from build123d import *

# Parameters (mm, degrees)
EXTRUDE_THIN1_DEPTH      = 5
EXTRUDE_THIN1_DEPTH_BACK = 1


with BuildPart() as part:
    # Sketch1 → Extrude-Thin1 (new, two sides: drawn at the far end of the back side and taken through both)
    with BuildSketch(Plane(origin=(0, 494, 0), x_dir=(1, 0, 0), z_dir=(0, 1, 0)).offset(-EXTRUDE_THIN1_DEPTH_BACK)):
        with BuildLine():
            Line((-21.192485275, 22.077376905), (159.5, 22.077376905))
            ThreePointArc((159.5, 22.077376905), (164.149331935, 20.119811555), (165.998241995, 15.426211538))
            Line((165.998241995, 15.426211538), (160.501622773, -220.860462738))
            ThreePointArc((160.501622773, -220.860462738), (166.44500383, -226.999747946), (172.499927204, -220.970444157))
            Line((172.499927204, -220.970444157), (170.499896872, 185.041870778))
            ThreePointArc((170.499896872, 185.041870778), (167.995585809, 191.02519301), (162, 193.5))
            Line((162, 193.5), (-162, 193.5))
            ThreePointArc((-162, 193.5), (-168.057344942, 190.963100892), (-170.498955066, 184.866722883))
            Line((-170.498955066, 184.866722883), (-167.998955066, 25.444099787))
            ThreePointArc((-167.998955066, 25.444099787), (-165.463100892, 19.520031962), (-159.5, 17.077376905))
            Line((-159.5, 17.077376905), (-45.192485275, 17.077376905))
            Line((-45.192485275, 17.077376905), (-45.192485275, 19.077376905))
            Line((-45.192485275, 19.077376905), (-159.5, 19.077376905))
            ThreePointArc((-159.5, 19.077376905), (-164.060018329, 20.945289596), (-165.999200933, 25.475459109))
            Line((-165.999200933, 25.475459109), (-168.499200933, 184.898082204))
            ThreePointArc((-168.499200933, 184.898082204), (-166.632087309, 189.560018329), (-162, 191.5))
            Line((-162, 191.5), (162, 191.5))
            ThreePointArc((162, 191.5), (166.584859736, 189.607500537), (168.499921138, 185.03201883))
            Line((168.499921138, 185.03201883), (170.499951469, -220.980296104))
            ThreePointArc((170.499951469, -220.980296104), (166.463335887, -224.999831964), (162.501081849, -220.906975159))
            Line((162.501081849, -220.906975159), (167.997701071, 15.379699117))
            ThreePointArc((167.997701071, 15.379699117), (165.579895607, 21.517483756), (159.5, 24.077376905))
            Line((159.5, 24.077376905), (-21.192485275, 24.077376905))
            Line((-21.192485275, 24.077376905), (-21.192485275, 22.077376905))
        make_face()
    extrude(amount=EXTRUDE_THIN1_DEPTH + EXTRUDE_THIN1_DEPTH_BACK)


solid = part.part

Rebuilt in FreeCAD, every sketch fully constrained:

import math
import FreeCAD as App
import Part
import Sketcher

V = App.Vector

doc = App.newDocument("Part")
body = doc.addObject("PartDesign::Body", "Body")

sketch1 = body.newObject("Sketcher::SketchObject", "Sketch")
sketch1.AttachmentSupport = (doc.getObject("XZ_Plane"), [""])
sketch1.MapMode = "FlatFace"
sketch1.AttachmentOffset = App.Placement(V(0, 0, -494), App.Rotation())
sketch1.addGeometry([
    Part.LineSegment(V(-21.2, -22.1, 0), V(159.5, -22.1, 0)),
    Part.ArcOfCircle(Part.Circle(V(159.5, -15.6, 0), V(0, 0, 1), 6.5), math.radians(-90), math.radians(1)),
    Part.LineSegment(V(166, -15.4, 0), V(160.5, 220.9, 0)),
    Part.ArcOfCircle(Part.Circle(V(166.5, 221, 0), V(0, 0, 1), 6), math.radians(0), math.radians(181)),
    Part.LineSegment(V(172.5, 221, 0), V(170.5, -185, 0)),
    Part.ArcOfCircle(Part.Circle(V(162, -185, 0), V(0, 0, 1), 8.5), math.radians(-90), math.radians(0)),
    Part.LineSegment(V(162, -193.5, 0), V(-162, -193.5, 0)),
    Part.ArcOfCircle(Part.Circle(V(-162, -185, 0), V(0, 0, 1), 8.5), math.radians(179), math.radians(270)),
    Part.LineSegment(V(-170.5, -184.9, 0), V(-168, -25.4, 0)),
    Part.ArcOfCircle(Part.Circle(V(-159.5, -25.6, 0), V(0, 0, 1), 8.5), math.radians(90), math.radians(179)),
    Part.LineSegment(V(-159.5, -17.1, 0), V(-45.2, -17.1, 0)),
    Part.LineSegment(V(-45.2, -17.1, 0), V(-45.2, -19.1, 0)),
    Part.LineSegment(V(-45.2, -19.1, 0), V(-159.5, -19.1, 0)),
    Part.ArcOfCircle(Part.Circle(V(-159.5, -25.6, 0), V(0, 0, 1), 6.5), math.radians(90), math.radians(179)),
    Part.LineSegment(V(-166, -25.5, 0), V(-168.5, -184.9, 0)),
    Part.ArcOfCircle(Part.Circle(V(-162, -185, 0), V(0, 0, 1), 6.5), math.radians(179), math.radians(270)),
    Part.LineSegment(V(-162, -191.5, 0), V(162, -191.5, 0)),
    Part.ArcOfCircle(Part.Circle(V(162, -185, 0), V(0, 0, 1), 6.5), math.radians(-90), math.radians(0)),
    Part.LineSegment(V(168.5, -185, 0), V(170.5, 221, 0)),
    Part.ArcOfCircle(Part.Circle(V(166.5, 221, 0), V(0, 0, 1), 4), math.radians(0), math.radians(181)),
    Part.LineSegment(V(162.5, 220.9, 0), V(168, -15.4, 0)),
    Part.ArcOfCircle(Part.Circle(V(159.5, -15.6, 0), V(0, 0, 1), 8.5), math.radians(-90), math.radians(1)),
    Part.LineSegment(V(159.5, -24.1, 0), V(-21.2, -24.1, 0)),
    Part.LineSegment(V(-21.2, -24.1, 0), V(-21.2, -22.1, 0)),
], False)
sketch1.addConstraint([
    Sketcher.Constraint("Tangent", 0, 2, 1, 1),
    Sketcher.Constraint("Tangent", 1, 2, 2, 1),
    Sketcher.Constraint("Tangent", 2, 2, 3, 2),
    Sketcher.Constraint("Tangent", 3, 1, 4, 1),
    Sketcher.Constraint("Tangent", 4, 2, 5, 2),
    Sketcher.Constraint("Tangent", 5, 1, 6, 1),
    Sketcher.Constraint("Tangent", 6, 2, 7, 2),
    Sketcher.Constraint("Tangent", 7, 1, 8, 1),
    Sketcher.Constraint("Tangent", 8, 2, 9, 2),
    Sketcher.Constraint("Tangent", 9, 1, 10, 1),
    Sketcher.Constraint("Coincident", 10, 2, 11, 1),
    Sketcher.Constraint("Coincident", 11, 2, 12, 1),
    Sketcher.Constraint("Tangent", 12, 2, 13, 1),
    Sketcher.Constraint("Tangent", 13, 2, 14, 1),
    Sketcher.Constraint("Tangent", 14, 2, 15, 1),
    Sketcher.Constraint("Tangent", 15, 2, 16, 1),
    Sketcher.Constraint("Tangent", 16, 2, 17, 1),
    Sketcher.Constraint("Tangent", 17, 2, 18, 1),
    Sketcher.Constraint("Tangent", 18, 2, 19, 1),
    Sketcher.Constraint("Tangent", 19, 2, 20, 1),
    Sketcher.Constraint("Tangent", 20, 2, 21, 2),
    Sketcher.Constraint("Tangent", 21, 1, 22, 1),
    Sketcher.Constraint("Coincident", 22, 2, 23, 1),
    Sketcher.Constraint("Coincident", 23, 2, 0, 1),
    Sketcher.Constraint("Horizontal", 0),
    Sketcher.Constraint("Horizontal", 6),
    Sketcher.Constraint("Horizontal", 10),
    Sketcher.Constraint("Vertical", 11),
    Sketcher.Constraint("Horizontal", 12),
    Sketcher.Constraint("Horizontal", 16),
    Sketcher.Constraint("Horizontal", 22),
    Sketcher.Constraint("Vertical", 23),
    Sketcher.Constraint("Coincident", 13, 3, 9, 3),
    Sketcher.Constraint("Coincident", 15, 3, 7, 3),
    Sketcher.Constraint("Coincident", 17, 3, 5, 3),
    Sketcher.Constraint("Coincident", 19, 3, 3, 3),
    Sketcher.Constraint("Coincident", 21, 3, 1, 3),
    Sketcher.Constraint("Equal", 5, 7),
    Sketcher.Constraint("Equal", 7, 9),
    Sketcher.Constraint("Equal", 1, 13),
    Sketcher.Constraint("Equal", 13, 15),
    Sketcher.Constraint("Equal", 9, 21),
    Sketcher.Constraint("Parallel", 4, 18),
    Sketcher.Constraint("Radius", 3, 6.0),
    Sketcher.Constraint("Radius", 19, 4.0),
    Sketcher.Constraint("Radius", 1, 6.5),
    Sketcher.Constraint("DistanceX", 6, 2, 6, 1, 324.0),
    Sketcher.Constraint("DistanceY", -1, 1, 3, 3, 221.0),
    Sketcher.Constraint("DistanceX", -1, 1, 5, 3, 162.0),
    Sketcher.Constraint("DistanceY", 5, 3, -1, 1, 185.0),
    Sketcher.Constraint("DistanceX", 1, 3, 3, 3, 7.0),
    Sketcher.Constraint("DistanceX", 9, 3, 1, 3, 319.0),
    Sketcher.Constraint("DistanceY", 9, 3, 1, 3, 10.0),
    Sketcher.Constraint("DistanceX", 11, 2, 22, 2, 24.0),
    Sketcher.Constraint("DistanceX", -1, 1, 1, 3, 159.5),
    Sketcher.Constraint("Distance", 2, 236.350598),
    Sketcher.Constraint("DistanceX", 0, 1, 0, 2, 180.692485),
])
pad1 = body.newObject("PartDesign::Pad", "Pad")
pad1.Profile = sketch1
pad1.Type = "TwoLengths"
pad1.Length = 5
pad1.Length2 = 1
pad1.Reversed = True

doc.recompute()
